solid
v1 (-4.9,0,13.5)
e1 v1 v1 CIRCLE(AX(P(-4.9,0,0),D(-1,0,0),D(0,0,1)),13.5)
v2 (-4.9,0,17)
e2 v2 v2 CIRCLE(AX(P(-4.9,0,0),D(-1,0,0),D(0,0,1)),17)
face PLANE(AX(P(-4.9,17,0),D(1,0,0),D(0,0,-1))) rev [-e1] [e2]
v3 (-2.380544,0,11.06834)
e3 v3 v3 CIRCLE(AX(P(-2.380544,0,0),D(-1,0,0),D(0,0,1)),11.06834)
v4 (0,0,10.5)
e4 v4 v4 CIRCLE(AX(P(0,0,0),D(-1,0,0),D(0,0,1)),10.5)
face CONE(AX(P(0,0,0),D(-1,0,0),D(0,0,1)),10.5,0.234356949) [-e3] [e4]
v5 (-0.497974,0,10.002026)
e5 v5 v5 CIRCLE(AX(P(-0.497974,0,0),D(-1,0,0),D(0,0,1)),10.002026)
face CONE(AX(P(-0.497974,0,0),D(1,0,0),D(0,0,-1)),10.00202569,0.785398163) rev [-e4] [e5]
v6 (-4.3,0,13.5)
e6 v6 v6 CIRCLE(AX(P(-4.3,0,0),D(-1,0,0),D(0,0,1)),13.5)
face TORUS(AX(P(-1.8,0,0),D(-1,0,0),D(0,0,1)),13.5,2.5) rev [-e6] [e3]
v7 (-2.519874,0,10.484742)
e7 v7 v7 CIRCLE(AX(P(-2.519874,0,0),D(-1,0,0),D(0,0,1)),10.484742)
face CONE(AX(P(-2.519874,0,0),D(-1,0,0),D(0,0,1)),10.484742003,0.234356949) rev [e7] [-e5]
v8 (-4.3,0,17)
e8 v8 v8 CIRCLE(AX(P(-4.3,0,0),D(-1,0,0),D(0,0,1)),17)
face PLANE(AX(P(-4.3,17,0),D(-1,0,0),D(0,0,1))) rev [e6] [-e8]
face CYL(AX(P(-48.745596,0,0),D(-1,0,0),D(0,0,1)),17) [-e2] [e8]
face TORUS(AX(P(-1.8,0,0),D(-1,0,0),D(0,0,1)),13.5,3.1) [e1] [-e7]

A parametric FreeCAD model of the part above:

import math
import FreeCAD as App
import Part
import Sketcher
from FreeCAD import Vector
Q = App.Units.Quantity

doc = App.newDocument("Part")
body = doc.addObject("PartDesign::Body", "Body")

# Sketch on XY plane
sketch1 = doc.addObject("Sketcher::SketchObject", "Sketch")
body.addObject(sketch1)
sketch1.AttachmentSupport = (doc.XY_Plane, [""])
sketch1.MapMode = "FlatFace"
sketch1.addGeometry([
    Part.LineSegment(Vector(-4.3, 13.5, 0), Vector(-4.3, 17, 0)),  # 0
    Part.LineSegment(Vector(-4.3, 17, 0), Vector(-4.9, 17, 0)),  # 1
    Part.LineSegment(Vector(-4.9, 17, 0), Vector(-4.9, 13.5, 0)),  # 2
    Part.ArcOfCircle(Part.Circle(Vector(-1.8, 13.5, 0), Vector(0, 0, 1), 3.1), math.radians(-180), math.radians(-103)),  # 3
    Part.LineSegment(Vector(-2.5, 10.5, 0), Vector(-0.5, 10, 0)),  # 4
    Part.LineSegment(Vector(-0.5, 10, 0), Vector(0, 10.5, 0)),  # 5
    Part.LineSegment(Vector(0, 10.5, 0), Vector(-2.4, 11.1, 0)),  # 6
    Part.ArcOfCircle(Part.Circle(Vector(-1.8, 13.5, 0), Vector(0, 0, 1), 2.5), math.radians(180), math.radians(257)),  # 7
], False)
sketch1.addConstraint([
    Sketcher.Constraint("Coincident", 0, 2, 1, 1),
    Sketcher.Constraint("Coincident", 1, 2, 2, 1),
    Sketcher.Constraint("Tangent", 2, 2, 3, 1),
    Sketcher.Constraint("Tangent", 3, 2, 4, 1),
    Sketcher.Constraint("Coincident", 4, 2, 5, 1),
    Sketcher.Constraint("Coincident", 5, 2, 6, 1),
    Sketcher.Constraint("Tangent", 6, 2, 7, 2),
    Sketcher.Constraint("Tangent", 7, 1, 0, 1),
    Sketcher.Constraint("Vertical", 0),
    Sketcher.Constraint("Horizontal", 1),
    Sketcher.Constraint("Vertical", 2),
    Sketcher.Constraint("Coincident", 7, 3, 3, 3),
    Sketcher.Constraint("PointOnObject", 5, 2, -2),
    Sketcher.Constraint("Parallel", 4, 6),
    Sketcher.Constraint("Radius", 3, 3.1),
    Sketcher.Constraint("Radius", 7, 2.5),
    Sketcher.Constraint("Angle", 5, Q("45 deg")),
    Sketcher.Constraint("DistanceY", 0, 1, 0, 2, 3.5),
    Sketcher.Constraint("DistanceY", -1, 1, 0, 2, 17.0),
    Sketcher.Constraint("DistanceY", 5, 2, 7, 3, 3.0),
    Sketcher.Constraint("DistanceX", 3, 3, -1, 1, 1.8),
])
revolution = doc.addObject("PartDesign::Revolution", "Revolution")
body.addObject(revolution)
revolution.Profile = sketch1
revolution.ReferenceAxis = (sketch1, ["H_Axis"])
revolution.Angle = 360

doc.recompute()
